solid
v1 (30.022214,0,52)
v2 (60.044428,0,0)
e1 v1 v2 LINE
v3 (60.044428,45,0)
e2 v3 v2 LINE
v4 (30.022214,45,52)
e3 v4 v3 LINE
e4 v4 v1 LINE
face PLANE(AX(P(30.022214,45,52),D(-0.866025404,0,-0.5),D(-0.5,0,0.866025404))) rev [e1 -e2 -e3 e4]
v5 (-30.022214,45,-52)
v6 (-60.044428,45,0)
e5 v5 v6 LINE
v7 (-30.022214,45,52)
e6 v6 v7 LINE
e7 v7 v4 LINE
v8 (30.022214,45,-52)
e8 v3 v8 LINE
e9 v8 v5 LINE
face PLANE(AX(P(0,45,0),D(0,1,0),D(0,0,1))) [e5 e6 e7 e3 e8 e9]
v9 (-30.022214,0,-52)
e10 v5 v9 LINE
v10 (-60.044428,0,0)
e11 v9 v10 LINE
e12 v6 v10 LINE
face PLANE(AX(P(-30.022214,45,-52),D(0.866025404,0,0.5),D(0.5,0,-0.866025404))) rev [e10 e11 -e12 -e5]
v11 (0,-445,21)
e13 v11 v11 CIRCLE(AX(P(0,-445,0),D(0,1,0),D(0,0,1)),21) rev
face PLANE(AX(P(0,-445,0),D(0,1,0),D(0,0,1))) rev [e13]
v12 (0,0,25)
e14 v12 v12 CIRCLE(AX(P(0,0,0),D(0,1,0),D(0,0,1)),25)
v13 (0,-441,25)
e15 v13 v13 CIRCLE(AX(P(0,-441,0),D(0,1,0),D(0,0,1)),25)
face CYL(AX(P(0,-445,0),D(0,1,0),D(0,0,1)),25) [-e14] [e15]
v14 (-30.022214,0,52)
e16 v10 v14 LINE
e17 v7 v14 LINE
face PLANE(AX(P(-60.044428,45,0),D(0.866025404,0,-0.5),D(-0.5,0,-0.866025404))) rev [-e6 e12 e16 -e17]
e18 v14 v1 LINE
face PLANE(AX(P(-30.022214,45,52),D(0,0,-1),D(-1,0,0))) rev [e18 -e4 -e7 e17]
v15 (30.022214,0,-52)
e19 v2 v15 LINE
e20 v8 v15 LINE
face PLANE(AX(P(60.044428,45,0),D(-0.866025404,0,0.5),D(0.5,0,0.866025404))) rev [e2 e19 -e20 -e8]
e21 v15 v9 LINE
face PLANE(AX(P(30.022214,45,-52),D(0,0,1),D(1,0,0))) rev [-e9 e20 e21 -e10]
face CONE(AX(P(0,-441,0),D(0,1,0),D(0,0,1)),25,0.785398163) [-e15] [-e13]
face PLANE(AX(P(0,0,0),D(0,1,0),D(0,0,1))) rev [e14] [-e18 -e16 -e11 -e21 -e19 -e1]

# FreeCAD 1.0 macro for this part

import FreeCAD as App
import Part
import Sketcher
from FreeCAD import Vector
Q = App.Units.Quantity


def edges_at(feature, points):
    """Names of the edges that pass closest to the given points."""
    edges = feature.Shape.Edges
    near = lambda p: min(range(len(edges)), key=lambda i: edges[i].distToShape(Part.Vertex(*p))[0])
    return sorted({f"Edge{near(p) + 1}" for p in points})

doc = App.newDocument("Part")
body = doc.addObject("PartDesign::Body", "Body")

sketch1 = body.newObject("Sketcher::SketchObject", "Sketch")
sketch1.AttachmentSupport = (doc.getObject("XZ_Plane"), [""])
sketch1.MapMode = "FlatFace"
sketch1.addGeometry([
    Part.LineSegment(Vector(60.044428, 0, 0), Vector(30.022214, -52, 0)),
    Part.LineSegment(Vector(30.022214, -52, 0), Vector(-30.022214, -52, 0)),
    Part.LineSegment(Vector(-30.022214, -52, 0), Vector(-60.044428, 0, 0)),
    Part.LineSegment(Vector(-60.044428, 0, 0), Vector(-30.022214, 52, 0)),
    Part.LineSegment(Vector(-30.022214, 52, 0), Vector(30.022214, 52, 0)),
    Part.LineSegment(Vector(30.022214, 52, 0), Vector(60.044428, 0, 0)),
    Part.Circle(Vector(0, 0, 0), Vector(0, 0, 1), 25),
], False)
sketch1.addConstraint([
    Sketcher.Constraint("Coincident", 0, 2, 1, 1),
    Sketcher.Constraint("Coincident", 1, 2, 2, 1),
    Sketcher.Constraint("Coincident", 2, 2, 3, 1),
    Sketcher.Constraint("Coincident", 3, 2, 4, 1),
    Sketcher.Constraint("Coincident", 4, 2, 5, 1),
    Sketcher.Constraint("Coincident", 5, 2, 0, 1),
    Sketcher.Constraint("Horizontal", 1),
    Sketcher.Constraint("Horizontal", 4),
    Sketcher.Constraint("Coincident", 6, 3, -1, 1),
    Sketcher.Constraint("Symmetric", 0, 2, 3, 2, -1, 1),
    Sketcher.Constraint("Symmetric", 2, 2, 5, 2, -1, 1),
    Sketcher.Constraint("PointOnObject", 2, 2, -1),
    Sketcher.Constraint("Parallel", 2, 5),
    Sketcher.Constraint("Vertical", 1, 2, 3, 2),
    Sketcher.Constraint("Diameter", 6, Q("50 mm")),
    Sketcher.Constraint("Angle", 0, Q("-120 deg")),
    Sketcher.Constraint("DistanceY", 0, 2, -1, 1, Q("52 mm")),
    Sketcher.Constraint("DistanceX", 1, 2, 1, 1, Q("60.044428 mm")),
])
pad1 = body.newObject("PartDesign::Pad", "Pad")
pad1.Profile = sketch1
pad1.Length = 45
pad1.Reversed = True

sketch2 = body.newObject("Sketcher::SketchObject", "Sketch001")
sketch2.AttachmentSupport = (doc.getObject("XZ_Plane"), [""])
sketch2.MapMode = "FlatFace"
sketch2.addGeometry(Part.Circle(Vector(0, 0, 0), Vector(0, 0, 1), 25), False)
sketch2.addConstraint([
    Sketcher.Constraint("Coincident", 0, 3, -1, 1),
    Sketcher.Constraint("Diameter", 0, Q("50 mm")),
])
pad2 = body.newObject("PartDesign::Pad", "Pad001")
pad2.Profile = sketch2
pad2.Type = "TwoLengths"
pad2.Length = 45
pad2.Length2 = 445
pad2.Reversed = True
doc.recompute()

chamfer = body.newObject("PartDesign::Chamfer", "Chamfer")
chamfer.Base = (pad2, edges_at(pad2, [(0, -445, -25)]))
chamfer.Size = 4

doc.recompute()
